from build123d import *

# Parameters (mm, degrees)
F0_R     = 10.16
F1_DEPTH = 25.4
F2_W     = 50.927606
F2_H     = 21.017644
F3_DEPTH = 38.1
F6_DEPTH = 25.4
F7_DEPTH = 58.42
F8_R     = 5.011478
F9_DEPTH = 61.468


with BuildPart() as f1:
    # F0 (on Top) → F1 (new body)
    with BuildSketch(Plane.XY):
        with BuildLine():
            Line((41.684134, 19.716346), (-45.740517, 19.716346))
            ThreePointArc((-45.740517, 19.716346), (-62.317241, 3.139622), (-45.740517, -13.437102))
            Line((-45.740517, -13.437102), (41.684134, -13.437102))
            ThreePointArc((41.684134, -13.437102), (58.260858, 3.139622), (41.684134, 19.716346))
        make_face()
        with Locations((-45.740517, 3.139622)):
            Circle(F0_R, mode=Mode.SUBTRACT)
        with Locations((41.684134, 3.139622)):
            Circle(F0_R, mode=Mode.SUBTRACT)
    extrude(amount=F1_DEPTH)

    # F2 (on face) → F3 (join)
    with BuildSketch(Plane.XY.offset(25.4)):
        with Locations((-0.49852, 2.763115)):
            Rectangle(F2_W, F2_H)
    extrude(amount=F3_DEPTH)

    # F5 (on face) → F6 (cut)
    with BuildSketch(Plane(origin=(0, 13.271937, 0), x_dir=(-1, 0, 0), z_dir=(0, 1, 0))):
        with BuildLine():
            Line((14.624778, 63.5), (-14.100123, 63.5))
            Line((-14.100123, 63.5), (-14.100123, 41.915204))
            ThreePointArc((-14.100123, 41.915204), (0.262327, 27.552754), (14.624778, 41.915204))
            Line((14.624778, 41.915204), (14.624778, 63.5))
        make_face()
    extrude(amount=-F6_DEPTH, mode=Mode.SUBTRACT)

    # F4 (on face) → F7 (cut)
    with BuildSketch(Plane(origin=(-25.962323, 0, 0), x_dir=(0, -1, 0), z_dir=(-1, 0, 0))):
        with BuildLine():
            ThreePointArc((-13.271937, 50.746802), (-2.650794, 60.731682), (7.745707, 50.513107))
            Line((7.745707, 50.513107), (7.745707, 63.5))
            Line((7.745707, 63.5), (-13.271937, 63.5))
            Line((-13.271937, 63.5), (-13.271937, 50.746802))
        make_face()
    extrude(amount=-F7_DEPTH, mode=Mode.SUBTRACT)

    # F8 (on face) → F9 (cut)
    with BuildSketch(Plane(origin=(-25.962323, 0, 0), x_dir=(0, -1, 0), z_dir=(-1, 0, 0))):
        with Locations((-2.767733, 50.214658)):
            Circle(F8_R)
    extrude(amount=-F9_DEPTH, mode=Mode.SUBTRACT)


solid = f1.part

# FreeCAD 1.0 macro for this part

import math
import FreeCAD as App
import Part
import Sketcher
from FreeCAD import Vector
Q = App.Units.Quantity

doc = App.newDocument("Part")
body = doc.addObject("PartDesign::Body", "Body")

sketch1 = doc.addObject("Sketcher::SketchObject", "Sketch")
body.addObject(sketch1)
sketch1.AttachmentSupport = (doc.XY_Plane, [""])
sketch1.MapMode = "FlatFace"
sketch1.addGeometry(Part.LineSegment(Vector(42, 20, 0), Vector(-46, 20, 0)), False)
sketch1.addGeometry(Part.ArcOfCircle(Part.Circle(Vector(-46, 3, 0), Vector(0, 0, 1), 17), math.radians(90), math.radians(270)), False)
sketch1.addGeometry(Part.LineSegment(Vector(-46, -13, 0), Vector(42, -13, 0)), False)
sketch1.addGeometry(Part.ArcOfCircle(Part.Circle(Vector(42, 3, 0), Vector(0, 0, 1), 17), math.radians(-90), math.radians(90)), False)
sketch1.addGeometry(Part.Circle(Vector(-46, 3, 0), Vector(0, 0, 1), 10), False)
sketch1.addGeometry(Part.Circle(Vector(42, 3, 0), Vector(0, 0, 1), 10), False)
sketch1.addConstraint(Sketcher.Constraint("Tangent", 0, 2, 1, 1))
sketch1.addConstraint(Sketcher.Constraint("Tangent", 1, 2, 2, 1))
sketch1.addConstraint(Sketcher.Constraint("Tangent", 2, 2, 3, 1))
sketch1.addConstraint(Sketcher.Constraint("Tangent", 3, 2, 0, 1))
sketch1.addConstraint(Sketcher.Constraint("Horizontal", 0))
sketch1.addConstraint(Sketcher.Constraint("Horizontal", 2))
sketch1.addConstraint(Sketcher.Constraint("Coincident", 4, 3, 1, 3))
sketch1.addConstraint(Sketcher.Constraint("Coincident", 5, 3, 3, 3))
sketch1.addConstraint(Sketcher.Constraint("Equal", 4, 5))
sketch1.addConstraint(Sketcher.Constraint("Diameter", 4, Q("0.8 in")))
sketch1.addConstraint(Sketcher.Constraint("Radius", 1, 16.576724))
sketch1.addConstraint(Sketcher.Constraint("DistanceX", 0, 2, 0, 1, 87.424651))
sketch1.addConstraint(Sketcher.Constraint("DistanceX", 1, 3, -1, 1, 45.740517))
sketch1.addConstraint(Sketcher.Constraint("DistanceY", -1, 1, 1, 3, 3.139622))
pad1 = doc.addObject("PartDesign::Pad", "Pad")
body.addObject(pad1)
pad1.Profile = sketch1
pad1.Length = Q("1 in")

sketch2 = doc.addObject("Sketcher::SketchObject", "Sketch001")
body.addObject(sketch2)
sketch2.AttachmentSupport = (doc.XY_Plane, [""])
sketch2.MapMode = "FlatFace"
sketch2.AttachmentOffset = App.Placement(Vector(0, 0, 1 * 25.4), App.Rotation())
sketch2.addGeometry(Part.LineSegment(Vector(-26, 13, 0), Vector(-26, -8, 0)), False)
sketch2.addGeometry(Part.LineSegment(Vector(-26, -8, 0), Vector(25, -8, 0)), False)
sketch2.addGeometry(Part.LineSegment(Vector(25, -8, 0), Vector(25, 13, 0)), False)
sketch2.addGeometry(Part.LineSegment(Vector(25, 13, 0), Vector(-26, 13, 0)), False)
sketch2.addConstraint(Sketcher.Constraint("Coincident", 0, 2, 1, 1))
sketch2.addConstraint(Sketcher.Constraint("Coincident", 1, 2, 2, 1))
sketch2.addConstraint(Sketcher.Constraint("Coincident", 2, 2, 3, 1))
sketch2.addConstraint(Sketcher.Constraint("Coincident", 3, 2, 0, 1))
sketch2.addConstraint(Sketcher.Constraint("Vertical", 0))
sketch2.addConstraint(Sketcher.Constraint("Horizontal", 1))
sketch2.addConstraint(Sketcher.Constraint("Vertical", 2))
sketch2.addConstraint(Sketcher.Constraint("Horizontal", 3))
sketch2.addConstraint(Sketcher.Constraint("DistanceX", 1, 1, 1, 2, 50.927606))
sketch2.addConstraint(Sketcher.Constraint("DistanceY", 0, 2, 0, 1, 21.017644))
sketch2.addConstraint(Sketcher.Constraint("DistanceX", 0, 2, -1, 1, 25.962323))
sketch2.addConstraint(Sketcher.Constraint("DistanceY", 0, 2, -1, 1, 7.745707))
pad2 = doc.addObject("PartDesign::Pad", "Pad001")
body.addObject(pad2)
pad2.Profile = sketch2
pad2.Length = Q("1.5 in")

sketch3 = doc.addObject("Sketcher::SketchObject", "Sketch002")
body.addObject(sketch3)
sketch3.AttachmentSupport = (doc.XZ_Plane, [""])
sketch3.MapMode = "FlatFace"
sketch3.AttachmentOffset = App.Placement(Vector(0, 0, -13.271937), App.Rotation())
sketch3.addGeometry(Part.LineSegment(Vector(-15, 64, 0), Vector(14, 64, 0)), False)
sketch3.addGeometry(Part.LineSegment(Vector(14, 64, 0), Vector(14, 42, 0)), False)
sketch3.addGeometry(Part.ArcOfCircle(Part.Circle(Vector(0, 42, 0), Vector(0, 0, 1), 14), math.radians(-180), math.radians(0)), False)
sketch3.addGeometry(Part.LineSegment(Vector(-15, 42, 0), Vector(-15, 64, 0)), False)
sketch3.addConstraint(Sketcher.Constraint("Coincident", 0, 2, 1, 1))
sketch3.addConstraint(Sketcher.Constraint("Tangent", 1, 2, 2, 2))
sketch3.addConstraint(Sketcher.Constraint("Tangent", 2, 1, 3, 1))
sketch3.addConstraint(Sketcher.Constraint("Coincident", 3, 2, 0, 1))
sketch3.addConstraint(Sketcher.Constraint("Horizontal", 0))
sketch3.addConstraint(Sketcher.Constraint("Vertical", 1))
sketch3.addConstraint(Sketcher.Constraint("Vertical", 3))
sketch3.addConstraint(Sketcher.Constraint("DistanceY", -1, 1, 0, 2, Q("2.5 in")))
sketch3.addConstraint(Sketcher.Constraint("Radius", 2, 14.36245))
sketch3.addConstraint(Sketcher.Constraint("DistanceY", 1, 2, 1, 1, 21.584796))
sketch3.addConstraint(Sketcher.Constraint("DistanceX", 2, 3, -1, 1, 0.262327))
pocket1 = doc.addObject("PartDesign::Pocket", "Pocket")
body.addObject(pocket1)
pocket1.Profile = sketch3
pocket1.Length = Q("1 in")
pocket1.Reversed = True

sketch4 = doc.addObject("Sketcher::SketchObject", "Sketch003")
body.addObject(sketch4)
sketch4.AttachmentSupport = (doc.YZ_Plane, [""])
sketch4.MapMode = "FlatFace"
sketch4.AttachmentOffset = App.Placement(Vector(0, 0, -25.962323), App.Rotation())
sketch4.addGeometry(Part.ArcOfCircle(Part.Circle(Vector(3, 50, 0), Vector(0, 0, 1), 11), math.radians(3), math.radians(178)), False)
sketch4.addGeometry(Part.LineSegment(Vector(-8, 51, 0), Vector(-8, 64, 0)), False)
sketch4.addGeometry(Part.LineSegment(Vector(-8, 64, 0), Vector(13, 64, 0)), False)
sketch4.addGeometry(Part.LineSegment(Vector(13, 64, 0), Vector(13, 51, 0)), False)
sketch4.addConstraint(Sketcher.Constraint("Coincident", 0, 2, 1, 1))
sketch4.addConstraint(Sketcher.Constraint("Coincident", 1, 2, 2, 1))
sketch4.addConstraint(Sketcher.Constraint("Coincident", 2, 2, 3, 1))
sketch4.addConstraint(Sketcher.Constraint("Coincident", 3, 2, 0, 1))
sketch4.addConstraint(Sketcher.Constraint("Vertical", 1))
sketch4.addConstraint(Sketcher.Constraint("Horizontal", 2))
sketch4.addConstraint(Sketcher.Constraint("Vertical", 3))
sketch4.addConstraint(Sketcher.Constraint("DistanceY", -1, 1, 1, 2, Q("2.5 in")))
sketch4.addConstraint(Sketcher.Constraint("Radius", 0, 10.517675))
sketch4.addConstraint(Sketcher.Constraint("DistanceX", 2, 1, 2, 2, 21.017644))
sketch4.addConstraint(Sketcher.Constraint("DistanceY", 1, 1, 1, 2, 12.986893))
sketch4.addConstraint(Sketcher.Constraint("DistanceY", 3, 2, 3, 1, 12.753198))
sketch4.addConstraint(Sketcher.Constraint("DistanceX", -1, 1, 0, 3, 2.767733))
pocket2 = doc.addObject("PartDesign::Pocket", "Pocket001")
body.addObject(pocket2)
pocket2.Profile = sketch4
pocket2.Length = Q("2.3 in")
pocket2.Reversed = True

sketch5 = doc.addObject("Sketcher::SketchObject", "Sketch004")
body.addObject(sketch5)
sketch5.AttachmentSupport = (doc.YZ_Plane, [""])
sketch5.MapMode = "FlatFace"
sketch5.AttachmentOffset = App.Placement(Vector(0, 0, -25.962323), App.Rotation())
sketch5.addGeometry(Part.Circle(Vector(3, 50, 0), Vector(0, 0, 1), 5), False)
sketch5.addConstraint(Sketcher.Constraint("Diameter", 0, 10.022956))
sketch5.addConstraint(Sketcher.Constraint("DistanceX", -1, 1, 0, 3, 2.767733))
sketch5.addConstraint(Sketcher.Constraint("DistanceY", -1, 1, 0, 3, 50.214658))
pocket3 = doc.addObject("PartDesign::Pocket", "Pocket002")
body.addObject(pocket3)
pocket3.Profile = sketch5
pocket3.Length = Q("2.42 in")
pocket3.Reversed = True

doc.recompute()
